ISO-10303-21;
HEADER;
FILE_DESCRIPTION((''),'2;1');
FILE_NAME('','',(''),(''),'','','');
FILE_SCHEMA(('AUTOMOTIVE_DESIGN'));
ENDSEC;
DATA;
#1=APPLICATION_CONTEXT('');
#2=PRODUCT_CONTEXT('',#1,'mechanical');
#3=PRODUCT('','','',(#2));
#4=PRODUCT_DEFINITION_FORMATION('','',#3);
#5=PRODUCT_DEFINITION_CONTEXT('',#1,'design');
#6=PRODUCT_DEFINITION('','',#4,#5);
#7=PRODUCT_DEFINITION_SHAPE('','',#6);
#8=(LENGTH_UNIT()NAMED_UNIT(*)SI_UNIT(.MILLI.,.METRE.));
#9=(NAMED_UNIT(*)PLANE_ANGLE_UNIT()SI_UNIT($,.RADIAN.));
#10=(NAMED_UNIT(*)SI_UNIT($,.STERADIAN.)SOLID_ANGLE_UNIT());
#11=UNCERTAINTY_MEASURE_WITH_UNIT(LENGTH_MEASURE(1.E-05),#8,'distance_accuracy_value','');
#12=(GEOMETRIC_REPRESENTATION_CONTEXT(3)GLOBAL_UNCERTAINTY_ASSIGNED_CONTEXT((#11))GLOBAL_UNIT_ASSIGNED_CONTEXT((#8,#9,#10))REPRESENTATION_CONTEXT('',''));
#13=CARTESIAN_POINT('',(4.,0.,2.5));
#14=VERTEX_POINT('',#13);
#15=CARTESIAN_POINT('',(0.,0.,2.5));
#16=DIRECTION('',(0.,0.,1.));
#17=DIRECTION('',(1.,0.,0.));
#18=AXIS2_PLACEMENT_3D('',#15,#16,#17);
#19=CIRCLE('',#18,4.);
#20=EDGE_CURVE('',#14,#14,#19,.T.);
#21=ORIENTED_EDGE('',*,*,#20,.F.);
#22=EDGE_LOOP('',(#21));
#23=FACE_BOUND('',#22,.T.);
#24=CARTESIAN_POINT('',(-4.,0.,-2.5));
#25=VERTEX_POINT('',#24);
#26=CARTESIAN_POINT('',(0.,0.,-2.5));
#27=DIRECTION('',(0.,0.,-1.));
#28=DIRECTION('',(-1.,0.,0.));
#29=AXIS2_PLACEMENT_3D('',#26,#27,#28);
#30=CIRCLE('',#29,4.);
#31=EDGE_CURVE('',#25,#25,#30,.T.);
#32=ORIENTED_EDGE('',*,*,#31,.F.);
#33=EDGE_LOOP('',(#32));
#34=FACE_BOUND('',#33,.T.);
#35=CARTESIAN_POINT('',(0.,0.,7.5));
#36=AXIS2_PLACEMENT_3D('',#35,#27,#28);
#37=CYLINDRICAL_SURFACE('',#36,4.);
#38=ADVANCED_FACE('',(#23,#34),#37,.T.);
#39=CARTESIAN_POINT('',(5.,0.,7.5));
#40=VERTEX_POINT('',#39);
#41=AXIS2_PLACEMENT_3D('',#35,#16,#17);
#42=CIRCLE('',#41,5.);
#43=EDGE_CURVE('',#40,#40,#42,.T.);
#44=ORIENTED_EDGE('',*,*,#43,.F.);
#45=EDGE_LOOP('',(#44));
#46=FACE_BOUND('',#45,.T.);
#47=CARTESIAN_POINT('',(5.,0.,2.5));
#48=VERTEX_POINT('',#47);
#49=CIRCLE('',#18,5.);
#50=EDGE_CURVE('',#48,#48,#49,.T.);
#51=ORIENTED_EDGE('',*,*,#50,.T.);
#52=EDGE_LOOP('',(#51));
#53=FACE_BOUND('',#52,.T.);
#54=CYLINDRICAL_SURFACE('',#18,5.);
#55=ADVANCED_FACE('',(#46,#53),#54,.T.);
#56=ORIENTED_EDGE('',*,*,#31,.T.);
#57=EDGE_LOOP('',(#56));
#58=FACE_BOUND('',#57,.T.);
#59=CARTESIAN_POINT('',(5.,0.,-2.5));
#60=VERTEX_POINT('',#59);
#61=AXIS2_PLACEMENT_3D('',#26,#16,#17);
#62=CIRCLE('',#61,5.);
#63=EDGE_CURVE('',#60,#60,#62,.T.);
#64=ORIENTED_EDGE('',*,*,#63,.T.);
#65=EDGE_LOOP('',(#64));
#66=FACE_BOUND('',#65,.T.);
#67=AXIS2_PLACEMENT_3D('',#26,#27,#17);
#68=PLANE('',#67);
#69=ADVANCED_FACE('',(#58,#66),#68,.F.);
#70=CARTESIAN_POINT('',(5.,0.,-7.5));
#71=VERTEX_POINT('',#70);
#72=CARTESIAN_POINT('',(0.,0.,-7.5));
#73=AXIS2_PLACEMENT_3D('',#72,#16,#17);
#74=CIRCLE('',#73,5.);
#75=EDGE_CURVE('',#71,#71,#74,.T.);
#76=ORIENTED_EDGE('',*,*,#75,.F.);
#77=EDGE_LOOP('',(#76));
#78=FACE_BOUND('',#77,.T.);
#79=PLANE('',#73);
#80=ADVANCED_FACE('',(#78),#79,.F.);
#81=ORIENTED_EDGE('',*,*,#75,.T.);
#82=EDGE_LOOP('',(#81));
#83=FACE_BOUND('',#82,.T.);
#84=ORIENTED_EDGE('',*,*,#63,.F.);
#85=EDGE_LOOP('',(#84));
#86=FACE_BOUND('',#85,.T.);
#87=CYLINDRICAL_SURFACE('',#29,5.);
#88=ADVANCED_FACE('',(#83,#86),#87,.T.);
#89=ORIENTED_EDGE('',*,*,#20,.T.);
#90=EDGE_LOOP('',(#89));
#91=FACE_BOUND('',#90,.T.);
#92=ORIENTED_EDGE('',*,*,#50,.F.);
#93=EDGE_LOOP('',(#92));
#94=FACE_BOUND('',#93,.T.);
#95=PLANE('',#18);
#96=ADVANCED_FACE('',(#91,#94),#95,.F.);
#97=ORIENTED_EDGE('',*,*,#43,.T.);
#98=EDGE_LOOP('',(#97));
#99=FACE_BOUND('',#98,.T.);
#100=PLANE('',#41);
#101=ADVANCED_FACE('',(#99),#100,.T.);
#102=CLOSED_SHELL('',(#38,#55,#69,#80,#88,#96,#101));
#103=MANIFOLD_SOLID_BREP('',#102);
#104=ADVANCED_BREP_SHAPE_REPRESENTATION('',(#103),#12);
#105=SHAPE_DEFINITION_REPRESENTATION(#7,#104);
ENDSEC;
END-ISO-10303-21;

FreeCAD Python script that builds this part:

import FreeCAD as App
import Part
import Sketcher
from FreeCAD import Vector

doc = App.newDocument("Part")
body = doc.addObject("PartDesign::Body", "Body")

# Sketch on XY plane
sketch1 = doc.addObject("Sketcher::SketchObject", "Sketch")
body.addObject(sketch1)
sketch1.AttachmentSupport = (doc.XY_Plane, [""])
sketch1.MapMode = "FlatFace"
sketch1.addGeometry(Part.Circle(Vector(0, 0, 0), Vector(0, 0, 1), 4), False)
sketch1.addConstraint(Sketcher.Constraint("Coincident", 0, 3, -1, 1))
sketch1.addConstraint(Sketcher.Constraint("Diameter", 0, 8.0))
pad1 = doc.addObject("PartDesign::Pad", "Pad")
body.addObject(pad1)
pad1.Profile = sketch1
pad1.Length = 15
pad1.Midplane = True

# Sketch on XY plane
sketch2 = doc.addObject("Sketcher::SketchObject", "Sketch001")
body.addObject(sketch2)
sketch2.AttachmentSupport = (doc.XY_Plane, [""])
sketch2.MapMode = "FlatFace"
sketch2.AttachmentOffset = App.Placement(Vector(0, 0, 7.5), App.Rotation())
sketch2.addGeometry(Part.Circle(Vector(0, 0, 0), Vector(0, 0, 1), 5), False)
sketch2.addConstraint(Sketcher.Constraint("Coincident", 0, 3, -1, 1))
sketch2.addConstraint(Sketcher.Constraint("Diameter", 0, 10.0))
pad2 = doc.addObject("PartDesign::Pad", "Pad001")
body.addObject(pad2)
pad2.Profile = sketch2
pad2.Length = 5
pad2.Reversed = True
doc.recompute()

mirrored = doc.addObject("PartDesign::Mirrored", "Mirrored")
body.addObject(mirrored)
mirrored.Originals = [pad2]
mirrored.MirrorPlane = (doc.XY_Plane, [""])
body.Tip = mirrored

doc.recompute()
